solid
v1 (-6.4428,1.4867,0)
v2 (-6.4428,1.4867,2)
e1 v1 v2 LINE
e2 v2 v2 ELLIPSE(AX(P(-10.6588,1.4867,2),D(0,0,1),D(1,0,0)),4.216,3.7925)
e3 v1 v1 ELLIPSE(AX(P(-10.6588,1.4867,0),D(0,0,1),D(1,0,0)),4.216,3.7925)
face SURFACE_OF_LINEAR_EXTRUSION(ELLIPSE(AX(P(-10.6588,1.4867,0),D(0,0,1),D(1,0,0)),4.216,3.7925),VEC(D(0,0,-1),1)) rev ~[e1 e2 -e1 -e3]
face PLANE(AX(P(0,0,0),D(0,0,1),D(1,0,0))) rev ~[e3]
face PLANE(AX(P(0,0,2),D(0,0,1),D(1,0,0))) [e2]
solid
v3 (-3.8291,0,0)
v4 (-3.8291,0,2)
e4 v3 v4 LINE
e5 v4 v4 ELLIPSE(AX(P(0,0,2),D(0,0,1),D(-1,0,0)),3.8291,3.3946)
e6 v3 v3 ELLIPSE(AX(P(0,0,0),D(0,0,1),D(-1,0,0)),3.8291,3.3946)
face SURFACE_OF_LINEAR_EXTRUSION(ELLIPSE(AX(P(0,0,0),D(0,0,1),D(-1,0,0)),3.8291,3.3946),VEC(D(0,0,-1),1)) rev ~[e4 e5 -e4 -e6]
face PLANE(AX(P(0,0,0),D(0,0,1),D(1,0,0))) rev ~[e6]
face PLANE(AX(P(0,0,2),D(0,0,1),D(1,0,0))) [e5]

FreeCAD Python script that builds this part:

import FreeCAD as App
import Part
import Sketcher

V = App.Vector

doc = App.newDocument("Part")
body = doc.addObject("PartDesign::Body", "Body")
body.AllowCompound = True

# Sketch on XY plane
sketch1 = doc.addObject("Sketcher::SketchObject", "Sketch")
body.addObject(sketch1)
sketch1.AttachmentSupport = (doc.XY_Plane, [""])
sketch1.MapMode = "FlatFace"
sketch1.addGeometry([
    Part.Ellipse(V(-6.4428, 1.4867, 0), V(-10.6588, 5.2792, 0), V(-10.6588, 1.4867, 0)),
    Part.Ellipse(V(-3.8291, 0, 0), V(0, -3.3946, 0), V(0, 0, 0)),
], False)
sketch1.addConstraint([
    Sketcher.Constraint("Block", 0),
    Sketcher.Constraint("Block", 1),
])
pad1 = doc.addObject("PartDesign::Pad", "Pad")
body.addObject(pad1)
pad1.Profile = sketch1
pad1.Length = 2

doc.recompute()
